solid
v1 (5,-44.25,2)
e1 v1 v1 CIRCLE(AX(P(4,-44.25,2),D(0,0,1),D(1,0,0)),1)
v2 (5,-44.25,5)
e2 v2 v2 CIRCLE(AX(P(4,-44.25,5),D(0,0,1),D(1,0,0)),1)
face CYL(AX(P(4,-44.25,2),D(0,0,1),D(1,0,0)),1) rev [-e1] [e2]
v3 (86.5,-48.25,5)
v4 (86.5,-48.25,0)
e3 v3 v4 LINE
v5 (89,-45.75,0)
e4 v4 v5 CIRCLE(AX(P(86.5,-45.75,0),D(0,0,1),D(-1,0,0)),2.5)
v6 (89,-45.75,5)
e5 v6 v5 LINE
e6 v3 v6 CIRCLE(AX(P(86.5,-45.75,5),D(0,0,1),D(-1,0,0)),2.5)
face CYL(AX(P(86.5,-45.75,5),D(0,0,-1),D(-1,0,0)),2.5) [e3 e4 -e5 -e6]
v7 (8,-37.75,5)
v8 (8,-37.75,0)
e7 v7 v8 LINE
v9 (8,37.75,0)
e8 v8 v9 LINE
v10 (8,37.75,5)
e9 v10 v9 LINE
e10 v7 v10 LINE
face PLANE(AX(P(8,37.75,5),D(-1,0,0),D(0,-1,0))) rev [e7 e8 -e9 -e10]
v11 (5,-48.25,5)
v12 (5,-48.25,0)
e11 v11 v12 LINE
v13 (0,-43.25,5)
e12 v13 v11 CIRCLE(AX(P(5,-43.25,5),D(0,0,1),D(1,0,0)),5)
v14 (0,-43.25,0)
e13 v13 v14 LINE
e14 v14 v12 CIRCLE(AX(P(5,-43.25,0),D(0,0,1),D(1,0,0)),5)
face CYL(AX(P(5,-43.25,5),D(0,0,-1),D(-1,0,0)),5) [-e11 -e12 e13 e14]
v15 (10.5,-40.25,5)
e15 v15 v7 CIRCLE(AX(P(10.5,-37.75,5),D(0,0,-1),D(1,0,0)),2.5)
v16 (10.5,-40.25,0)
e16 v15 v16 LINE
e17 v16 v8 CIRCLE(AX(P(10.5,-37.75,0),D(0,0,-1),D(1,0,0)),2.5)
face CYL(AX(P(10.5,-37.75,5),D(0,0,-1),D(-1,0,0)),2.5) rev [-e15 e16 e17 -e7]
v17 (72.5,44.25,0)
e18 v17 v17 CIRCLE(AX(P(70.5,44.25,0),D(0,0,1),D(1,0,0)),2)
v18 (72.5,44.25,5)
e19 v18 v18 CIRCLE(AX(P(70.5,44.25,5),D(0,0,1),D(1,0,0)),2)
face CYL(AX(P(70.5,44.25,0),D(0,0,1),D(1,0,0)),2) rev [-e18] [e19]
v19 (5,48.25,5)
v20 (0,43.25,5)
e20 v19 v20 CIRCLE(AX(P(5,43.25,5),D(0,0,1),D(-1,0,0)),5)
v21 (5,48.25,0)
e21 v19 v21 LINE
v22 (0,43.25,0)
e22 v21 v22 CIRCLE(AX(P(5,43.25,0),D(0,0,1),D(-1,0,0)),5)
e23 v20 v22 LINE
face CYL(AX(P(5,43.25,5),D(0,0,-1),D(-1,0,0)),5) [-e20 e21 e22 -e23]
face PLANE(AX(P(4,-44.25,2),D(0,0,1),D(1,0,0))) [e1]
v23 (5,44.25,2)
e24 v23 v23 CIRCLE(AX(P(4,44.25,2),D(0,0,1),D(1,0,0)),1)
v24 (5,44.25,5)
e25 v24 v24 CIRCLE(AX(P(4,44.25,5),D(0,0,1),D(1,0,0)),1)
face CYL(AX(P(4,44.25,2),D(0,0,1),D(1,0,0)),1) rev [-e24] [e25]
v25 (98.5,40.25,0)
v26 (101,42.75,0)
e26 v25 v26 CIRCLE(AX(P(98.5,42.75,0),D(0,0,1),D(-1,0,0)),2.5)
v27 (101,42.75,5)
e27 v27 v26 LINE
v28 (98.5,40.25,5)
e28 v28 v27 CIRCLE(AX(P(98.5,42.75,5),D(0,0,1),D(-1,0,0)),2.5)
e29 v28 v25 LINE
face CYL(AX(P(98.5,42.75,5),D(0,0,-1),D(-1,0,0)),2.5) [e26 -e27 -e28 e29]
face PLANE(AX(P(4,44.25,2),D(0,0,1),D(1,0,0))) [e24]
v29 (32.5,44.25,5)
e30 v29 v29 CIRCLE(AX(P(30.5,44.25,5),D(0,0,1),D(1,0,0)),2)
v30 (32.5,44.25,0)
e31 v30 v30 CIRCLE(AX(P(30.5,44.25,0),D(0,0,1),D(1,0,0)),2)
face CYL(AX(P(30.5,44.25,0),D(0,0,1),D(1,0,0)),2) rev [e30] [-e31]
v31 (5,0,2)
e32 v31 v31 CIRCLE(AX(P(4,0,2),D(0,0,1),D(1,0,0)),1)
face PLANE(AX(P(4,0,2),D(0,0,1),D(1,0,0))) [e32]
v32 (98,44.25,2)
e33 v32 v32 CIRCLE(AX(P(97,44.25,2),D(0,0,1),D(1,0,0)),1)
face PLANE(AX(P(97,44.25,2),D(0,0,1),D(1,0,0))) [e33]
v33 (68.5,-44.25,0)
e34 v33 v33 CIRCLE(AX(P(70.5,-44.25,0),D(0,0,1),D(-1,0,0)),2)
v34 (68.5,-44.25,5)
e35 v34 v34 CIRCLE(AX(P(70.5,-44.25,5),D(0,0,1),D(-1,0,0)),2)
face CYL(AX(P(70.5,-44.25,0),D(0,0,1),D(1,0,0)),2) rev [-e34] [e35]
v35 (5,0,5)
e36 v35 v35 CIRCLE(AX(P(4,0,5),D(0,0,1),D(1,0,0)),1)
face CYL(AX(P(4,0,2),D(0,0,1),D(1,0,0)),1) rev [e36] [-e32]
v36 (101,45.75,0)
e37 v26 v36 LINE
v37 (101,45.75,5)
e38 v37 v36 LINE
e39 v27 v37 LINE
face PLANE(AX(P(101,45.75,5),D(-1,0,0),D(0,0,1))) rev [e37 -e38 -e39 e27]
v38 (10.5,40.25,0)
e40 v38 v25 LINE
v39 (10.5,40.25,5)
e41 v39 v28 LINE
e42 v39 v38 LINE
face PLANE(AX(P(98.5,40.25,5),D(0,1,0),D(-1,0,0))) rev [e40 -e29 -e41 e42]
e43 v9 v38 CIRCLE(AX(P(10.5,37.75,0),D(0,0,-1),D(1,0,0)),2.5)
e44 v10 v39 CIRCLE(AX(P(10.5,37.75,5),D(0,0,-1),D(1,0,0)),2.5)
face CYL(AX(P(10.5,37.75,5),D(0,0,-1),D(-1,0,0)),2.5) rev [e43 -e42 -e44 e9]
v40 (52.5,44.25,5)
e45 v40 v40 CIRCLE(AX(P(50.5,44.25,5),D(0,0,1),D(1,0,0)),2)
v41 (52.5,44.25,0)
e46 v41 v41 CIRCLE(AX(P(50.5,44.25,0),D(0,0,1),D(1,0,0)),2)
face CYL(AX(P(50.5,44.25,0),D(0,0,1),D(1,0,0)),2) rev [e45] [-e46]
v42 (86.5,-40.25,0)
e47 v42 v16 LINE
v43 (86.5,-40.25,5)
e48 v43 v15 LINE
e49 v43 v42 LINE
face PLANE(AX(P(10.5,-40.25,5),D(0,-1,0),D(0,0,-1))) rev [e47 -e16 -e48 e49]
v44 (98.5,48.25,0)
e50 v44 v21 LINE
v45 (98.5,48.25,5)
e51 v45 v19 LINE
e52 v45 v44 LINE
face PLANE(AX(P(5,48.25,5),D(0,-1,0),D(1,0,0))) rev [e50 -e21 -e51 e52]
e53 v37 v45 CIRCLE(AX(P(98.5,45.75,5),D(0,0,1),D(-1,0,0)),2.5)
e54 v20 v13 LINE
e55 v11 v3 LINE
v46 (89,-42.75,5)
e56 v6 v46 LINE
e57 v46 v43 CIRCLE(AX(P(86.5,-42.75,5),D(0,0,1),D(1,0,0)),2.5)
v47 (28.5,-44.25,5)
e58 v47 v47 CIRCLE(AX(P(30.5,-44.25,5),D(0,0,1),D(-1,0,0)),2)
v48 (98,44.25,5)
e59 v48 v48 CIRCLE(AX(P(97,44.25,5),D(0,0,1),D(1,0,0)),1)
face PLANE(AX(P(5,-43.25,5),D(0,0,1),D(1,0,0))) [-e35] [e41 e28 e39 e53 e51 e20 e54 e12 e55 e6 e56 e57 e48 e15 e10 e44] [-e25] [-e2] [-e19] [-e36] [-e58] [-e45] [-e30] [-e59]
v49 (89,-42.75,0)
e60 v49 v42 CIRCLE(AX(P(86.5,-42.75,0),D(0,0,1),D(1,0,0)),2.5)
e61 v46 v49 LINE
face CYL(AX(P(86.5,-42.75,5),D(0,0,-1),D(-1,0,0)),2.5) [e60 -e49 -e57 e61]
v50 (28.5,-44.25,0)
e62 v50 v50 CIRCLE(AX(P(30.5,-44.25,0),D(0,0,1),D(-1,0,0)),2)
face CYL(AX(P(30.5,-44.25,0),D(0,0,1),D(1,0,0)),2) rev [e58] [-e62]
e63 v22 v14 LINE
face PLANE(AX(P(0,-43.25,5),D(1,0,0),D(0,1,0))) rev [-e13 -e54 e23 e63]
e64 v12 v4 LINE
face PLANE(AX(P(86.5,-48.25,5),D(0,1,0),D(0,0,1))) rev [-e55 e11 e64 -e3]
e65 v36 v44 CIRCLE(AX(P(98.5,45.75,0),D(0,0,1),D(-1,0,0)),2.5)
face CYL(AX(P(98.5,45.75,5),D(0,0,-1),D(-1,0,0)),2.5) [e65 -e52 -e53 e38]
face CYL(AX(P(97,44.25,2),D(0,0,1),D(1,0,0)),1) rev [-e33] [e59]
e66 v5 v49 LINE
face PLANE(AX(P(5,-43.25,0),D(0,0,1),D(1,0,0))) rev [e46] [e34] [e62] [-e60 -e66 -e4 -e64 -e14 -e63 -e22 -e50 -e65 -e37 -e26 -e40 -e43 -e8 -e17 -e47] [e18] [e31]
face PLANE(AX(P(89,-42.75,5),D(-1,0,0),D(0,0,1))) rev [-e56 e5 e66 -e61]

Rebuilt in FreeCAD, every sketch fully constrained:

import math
import FreeCAD as App
import Part
import Sketcher
from FreeCAD import Vector

doc = App.newDocument("Part")
body = doc.addObject("PartDesign::Body", "Body")

# Sketch on XY plane
sketch1 = doc.addObject("Sketcher::SketchObject", "Sketch")
body.addObject(sketch1)
sketch1.AttachmentSupport = (doc.XY_Plane, [""])
sketch1.MapMode = "FlatFace"
sketch1.addGeometry([
    Part.LineSegment(Vector(0, 43.2, 0), Vector(0, -43.2, 0)),  # 0
    Part.ArcOfCircle(Part.Circle(Vector(5, -43.2, 0), Vector(0, 0, 1), 5), math.radians(180), math.radians(270)),  # 1
    Part.LineSegment(Vector(5, -48.2, 0), Vector(86.5, -48.2, 0)),  # 2
    Part.ArcOfCircle(Part.Circle(Vector(86.5, -45.8, 0), Vector(0, 0, 1), 2.5), math.radians(-90), math.radians(0)),  # 3
    Part.LineSegment(Vector(89, -45.8, 0), Vector(89, -42.8, 0)),  # 4
    Part.ArcOfCircle(Part.Circle(Vector(86.5, -42.8, 0), Vector(0, 0, 1), 2.5), math.radians(0), math.radians(90)),  # 5
    Part.LineSegment(Vector(86.5, -40.2, 0), Vector(10.5, -40.2, 0)),  # 6
    Part.ArcOfCircle(Part.Circle(Vector(10.5, -37.8, 0), Vector(0, 0, 1), 2.5), math.radians(180), math.radians(270)),  # 7
    Part.LineSegment(Vector(8, -37.8, 0), Vector(8, 37.8, 0)),  # 8
    Part.ArcOfCircle(Part.Circle(Vector(10.5, 37.8, 0), Vector(0, 0, 1), 2.5), math.radians(90), math.radians(180)),  # 9
    Part.LineSegment(Vector(10.5, 40.2, 0), Vector(98.5, 40.2, 0)),  # 10
    Part.ArcOfCircle(Part.Circle(Vector(98.5, 42.8, 0), Vector(0, 0, 1), 2.5), math.radians(-90), math.radians(0)),  # 11
    Part.LineSegment(Vector(101, 42.8, 0), Vector(101, 45.8, 0)),  # 12
    Part.ArcOfCircle(Part.Circle(Vector(98.5, 45.8, 0), Vector(0, 0, 1), 2.5), math.radians(0), math.radians(90)),  # 13
    Part.LineSegment(Vector(98.5, 48.2, 0), Vector(5, 48.2, 0)),  # 14
    Part.ArcOfCircle(Part.Circle(Vector(5, 43.2, 0), Vector(0, 0, 1), 5), math.radians(90), math.radians(180)),  # 15
], False)
sketch1.addConstraint([
    Sketcher.Constraint("Tangent", 0, 2, 1, 1),
    Sketcher.Constraint("Tangent", 1, 2, 2, 1),
    Sketcher.Constraint("Tangent", 2, 2, 3, 1),
    Sketcher.Constraint("Tangent", 3, 2, 4, 1),
    Sketcher.Constraint("Tangent", 4, 2, 5, 1),
    Sketcher.Constraint("Tangent", 5, 2, 6, 1),
    Sketcher.Constraint("Tangent", 6, 2, 7, 2),
    Sketcher.Constraint("Tangent", 7, 1, 8, 1),
    Sketcher.Constraint("Tangent", 8, 2, 9, 2),
    Sketcher.Constraint("Tangent", 9, 1, 10, 1),
    Sketcher.Constraint("Tangent", 10, 2, 11, 1),
    Sketcher.Constraint("Tangent", 11, 2, 12, 1),
    Sketcher.Constraint("Tangent", 12, 2, 13, 1),
    Sketcher.Constraint("Tangent", 13, 2, 14, 1),
    Sketcher.Constraint("Tangent", 14, 2, 15, 1),
    Sketcher.Constraint("Tangent", 15, 2, 0, 1),
    Sketcher.Constraint("Vertical", 0),
    Sketcher.Constraint("Horizontal", 2),
    Sketcher.Constraint("Vertical", 4),
    Sketcher.Constraint("Horizontal", 6),
    Sketcher.Constraint("Vertical", 8),
    Sketcher.Constraint("Horizontal", 10),
    Sketcher.Constraint("Vertical", 12),
    Sketcher.Constraint("Horizontal", 14),
    Sketcher.Constraint("Equal", 3, 5),
    Sketcher.Constraint("Equal", 5, 7),
    Sketcher.Constraint("Equal", 7, 9),
    Sketcher.Constraint("Equal", 9, 11),
    Sketcher.Constraint("Equal", 11, 13),
    Sketcher.Constraint("Equal", 1, 15),
    Sketcher.Constraint("Symmetric", 0, 2, 15, 2, -1, 1),
    Sketcher.Constraint("Equal", 4, 12),
    Sketcher.Constraint("Radius", 1, 5.0),
    Sketcher.Constraint("Radius", 3, 2.5),
    Sketcher.Constraint("DistanceX", 6, 2, 6, 1, 76.0),
    Sketcher.Constraint("DistanceX", 10, 1, 10, 2, 88.0),
    Sketcher.Constraint("DistanceY", 4, 1, 4, 2, 3.0),
    Sketcher.Constraint("DistanceX", 2, 1, 2, 2, 81.5),
    Sketcher.Constraint("DistanceY", 0, 2, 0, 1, 86.5),
])
pad1 = doc.addObject("PartDesign::Pad", "Pad")
body.addObject(pad1)
pad1.Profile = sketch1
pad1.Length = 5

# Sketch on XY plane
sketch2 = doc.addObject("Sketcher::SketchObject", "Sketch001")
body.addObject(sketch2)
sketch2.AttachmentSupport = (doc.XY_Plane, [""])
sketch2.MapMode = "FlatFace"
sketch2.AttachmentOffset = App.Placement(Vector(0, 0, 5), App.Rotation())
sketch2.addGeometry([
    Part.Circle(Vector(70.5, 44.2, 0), Vector(0, 0, 1), 2),  # 0
    Part.Circle(Vector(30.5, 44.2, 0), Vector(0, 0, 1), 2),  # 1
    Part.Circle(Vector(70.5, -44.2, 0), Vector(0, 0, 1), 2),  # 2
    Part.Circle(Vector(30.5, -44.2, 0), Vector(0, 0, 1), 2),  # 3
    Part.Circle(Vector(50.5, 44.2, 0), Vector(0, 0, 1), 2),  # 4
], False)
sketch2.addConstraint([
    Sketcher.Constraint("Equal", 0, 1),
    Sketcher.Constraint("Equal", 1, 2),
    Sketcher.Constraint("Equal", 2, 3),
    Sketcher.Constraint("Equal", 3, 4),
    Sketcher.Constraint("Symmetric", 0, 3, 2, 3, -1),
    Sketcher.Constraint("Symmetric", 1, 3, 3, 3, -1),
    Sketcher.Constraint("Horizontal", 0, 3, 1, 3),
    Sketcher.Constraint("Horizontal", 1, 3, 4, 3),
    Sketcher.Constraint("Diameter", 0, 4.0),
    Sketcher.Constraint("DistanceX", 1, 3, 0, 3, 40.0),
    Sketcher.Constraint("DistanceX", 4, 3, 0, 3, 20.0),
    Sketcher.Constraint("DistanceX", -1, 1, 0, 3, 70.5),
    Sketcher.Constraint("DistanceY", 2, 3, 0, 3, 88.5),
])
pocket1 = doc.addObject("PartDesign::Pocket", "Pocket")
body.addObject(pocket1)
pocket1.Profile = sketch2
pocket1.Type = "ThroughAll"

# Sketch on XY plane
sketch3 = doc.addObject("Sketcher::SketchObject", "Sketch002")
body.addObject(sketch3)
sketch3.AttachmentSupport = (doc.XY_Plane, [""])
sketch3.MapMode = "FlatFace"
sketch3.AttachmentOffset = App.Placement(Vector(0, 0, 5), App.Rotation())
sketch3.addGeometry([
    Part.Circle(Vector(4, 44.2, 0), Vector(0, 0, 1), 1),
    Part.Circle(Vector(4, 0, 0), Vector(0, 0, 1), 1),
    Part.Circle(Vector(4, -44.2, 0), Vector(0, 0, 1), 1),
    Part.Circle(Vector(97, 44.2, 0), Vector(0, 0, 1), 1),
], False)
sketch3.addConstraint([
    Sketcher.Constraint("Equal", 0, 1),
    Sketcher.Constraint("Equal", 1, 2),
    Sketcher.Constraint("Equal", 2, 3),
    Sketcher.Constraint("Symmetric", 0, 3, 2, 3, -1),
    Sketcher.Constraint("PointOnObject", 1, 3, -1),
    Sketcher.Constraint("Horizontal", 0, 3, 3, 3),
    Sketcher.Constraint("Vertical", 0, 3, 1, 3),
    Sketcher.Constraint("Diameter", 0, 2.0),
    Sketcher.Constraint("DistanceX", -1, 1, 0, 3, 4.0),
    Sketcher.Constraint("DistanceX", -1, 1, 3, 3, 97.0),
    Sketcher.Constraint("DistanceY", 2, 3, 0, 3, 88.5),
])
pocket2 = doc.addObject("PartDesign::Pocket", "Pocket001")
body.addObject(pocket2)
pocket2.Profile = sketch3
pocket2.Length = 3

doc.recompute()
